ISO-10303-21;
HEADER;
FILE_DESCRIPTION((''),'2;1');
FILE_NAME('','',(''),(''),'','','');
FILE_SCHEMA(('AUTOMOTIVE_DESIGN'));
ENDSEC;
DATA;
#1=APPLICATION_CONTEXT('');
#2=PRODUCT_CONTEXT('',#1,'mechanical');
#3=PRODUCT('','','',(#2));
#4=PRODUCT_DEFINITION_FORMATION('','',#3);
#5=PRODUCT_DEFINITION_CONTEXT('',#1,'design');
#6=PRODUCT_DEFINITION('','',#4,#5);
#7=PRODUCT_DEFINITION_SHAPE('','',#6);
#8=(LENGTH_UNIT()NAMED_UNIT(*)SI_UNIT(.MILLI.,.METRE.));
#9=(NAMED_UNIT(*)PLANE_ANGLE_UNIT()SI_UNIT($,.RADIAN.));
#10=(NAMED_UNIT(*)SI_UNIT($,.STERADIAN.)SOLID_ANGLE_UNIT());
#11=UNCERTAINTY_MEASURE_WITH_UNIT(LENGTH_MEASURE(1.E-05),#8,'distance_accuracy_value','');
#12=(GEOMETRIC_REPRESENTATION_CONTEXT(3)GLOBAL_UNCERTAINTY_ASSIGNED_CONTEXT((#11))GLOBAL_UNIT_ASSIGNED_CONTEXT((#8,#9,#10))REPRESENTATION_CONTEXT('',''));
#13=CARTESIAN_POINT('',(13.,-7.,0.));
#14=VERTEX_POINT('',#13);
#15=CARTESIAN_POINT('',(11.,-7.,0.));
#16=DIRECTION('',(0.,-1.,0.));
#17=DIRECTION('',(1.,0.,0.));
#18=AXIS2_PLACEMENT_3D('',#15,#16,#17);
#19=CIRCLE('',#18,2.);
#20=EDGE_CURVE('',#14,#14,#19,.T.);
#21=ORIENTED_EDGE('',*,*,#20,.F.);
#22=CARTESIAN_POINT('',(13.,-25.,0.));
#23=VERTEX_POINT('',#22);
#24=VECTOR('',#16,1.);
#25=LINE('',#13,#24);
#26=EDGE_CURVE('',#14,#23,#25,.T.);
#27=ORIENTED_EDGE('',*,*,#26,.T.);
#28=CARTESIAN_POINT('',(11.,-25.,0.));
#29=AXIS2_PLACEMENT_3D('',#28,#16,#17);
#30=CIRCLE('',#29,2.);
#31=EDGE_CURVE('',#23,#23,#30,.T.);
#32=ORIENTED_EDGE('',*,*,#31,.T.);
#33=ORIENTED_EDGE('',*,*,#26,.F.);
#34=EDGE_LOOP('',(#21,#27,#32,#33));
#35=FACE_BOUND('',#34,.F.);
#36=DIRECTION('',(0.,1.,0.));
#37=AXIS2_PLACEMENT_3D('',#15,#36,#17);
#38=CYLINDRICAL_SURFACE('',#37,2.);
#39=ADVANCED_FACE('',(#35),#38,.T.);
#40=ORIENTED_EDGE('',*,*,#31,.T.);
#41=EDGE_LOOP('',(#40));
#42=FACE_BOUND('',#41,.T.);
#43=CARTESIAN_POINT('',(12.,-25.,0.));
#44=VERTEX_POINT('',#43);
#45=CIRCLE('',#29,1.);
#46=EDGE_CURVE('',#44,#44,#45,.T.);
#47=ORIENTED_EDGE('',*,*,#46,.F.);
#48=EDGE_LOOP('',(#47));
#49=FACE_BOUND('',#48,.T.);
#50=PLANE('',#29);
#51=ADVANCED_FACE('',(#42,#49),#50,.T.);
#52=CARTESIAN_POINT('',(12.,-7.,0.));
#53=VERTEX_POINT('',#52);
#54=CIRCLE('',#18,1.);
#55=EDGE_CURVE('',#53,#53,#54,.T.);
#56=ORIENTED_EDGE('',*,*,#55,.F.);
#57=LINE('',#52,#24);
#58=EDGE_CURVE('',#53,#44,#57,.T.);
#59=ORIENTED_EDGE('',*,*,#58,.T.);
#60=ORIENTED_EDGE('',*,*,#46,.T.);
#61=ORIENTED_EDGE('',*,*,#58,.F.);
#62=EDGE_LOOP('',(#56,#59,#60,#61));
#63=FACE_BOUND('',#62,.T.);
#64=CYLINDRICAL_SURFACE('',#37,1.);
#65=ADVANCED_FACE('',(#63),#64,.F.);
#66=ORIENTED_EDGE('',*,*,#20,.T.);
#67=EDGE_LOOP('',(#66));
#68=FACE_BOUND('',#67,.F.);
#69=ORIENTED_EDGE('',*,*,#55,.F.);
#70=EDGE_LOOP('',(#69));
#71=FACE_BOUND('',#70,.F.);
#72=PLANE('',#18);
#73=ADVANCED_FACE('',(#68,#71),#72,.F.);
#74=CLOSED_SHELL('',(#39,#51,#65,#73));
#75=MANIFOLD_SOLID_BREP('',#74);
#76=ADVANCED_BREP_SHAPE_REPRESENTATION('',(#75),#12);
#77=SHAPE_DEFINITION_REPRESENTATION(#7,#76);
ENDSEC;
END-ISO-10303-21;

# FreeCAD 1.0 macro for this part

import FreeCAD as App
import Part
import Sketcher

doc = App.newDocument("Part")
params = doc.addObject("Spreadsheet::Sheet", "Params")
for row, (alias, value) in enumerate([
    ("sketch1_diameter", "2 mm"),
    ("pad1_length", "18 mm"),
    ("sketch2_diameter", "4 mm"),
    ("pad2_length", "18 mm"),
], start=1):
    params.set(f"A{row}", alias)
    params.set(f"B{row}", "=" + value)
    params.setAlias(f"B{row}", alias)

body = doc.addObject("PartDesign::Body", "Body")

# Sketch on XY plane
sketch1 = body.newObject("Sketcher::SketchObject", "Sketch")
sketch1.AttachmentSupport = (doc.getObject("XY_Plane"), [""])
sketch1.MapMode = "FlatFace"
sketch1.addGeometry(Part.Circle(App.Vector(0, 0, 0), App.Vector(0, 0, 1), 1), False)
sketch1.addConstraint([
    Sketcher.Constraint("Coincident", 0, 3, -1, 1),
    Sketcher.Constraint("Diameter", 0, 2.0),
])
sketch1.setExpression("Constraints[1]", "Params.sketch1_diameter")
pad1 = body.newObject("PartDesign::Pad", "Pad")
pad1.Profile = sketch1
pad1.setExpression("Length", "Params.pad1_length")
body2 = doc.addObject("PartDesign::Body", "Body001")
doc.recompute()

body.Placement = App.Placement(App.Vector(0, 0, 0), App.Rotation(App.Vector(1, 0, 0), 90))
boolean = body2.newObject("PartDesign::Boolean", "Boolean")
boolean.Type = "Fuse"
boolean.addObjects([body])
body3 = doc.addObject("PartDesign::Body", "Body002")
doc.recompute()

body2.Placement = App.Placement(App.Vector(12, -7, 0), App.Rotation(App.Vector(0, 0, 1), 0))
boolean2 = body3.newObject("PartDesign::Boolean", "Boolean001")
boolean2.Type = "Fuse"
boolean2.addObjects([body2])
body4 = doc.addObject("PartDesign::Body", "Body003")

# Sketch on XY plane
sketch2 = body4.newObject("Sketcher::SketchObject", "Sketch001")
sketch2.AttachmentSupport = (doc.getObject("XY_Plane003"), [""])
sketch2.MapMode = "FlatFace"
sketch2.addGeometry(Part.Circle(App.Vector(0, 0, 0), App.Vector(0, 0, 1), 2), False)
sketch2.addConstraint([
    Sketcher.Constraint("Coincident", 0, 3, -1, 1),
    Sketcher.Constraint("Diameter", 0, 4.0),
])
sketch2.setExpression("Constraints[1]", "Params.sketch2_diameter")
pad2 = body4.newObject("PartDesign::Pad", "Pad001")
pad2.Profile = sketch2
pad2.setExpression("Length", "Params.pad2_length")
body5 = doc.addObject("PartDesign::Body", "Body004")
doc.recompute()

body4.Placement = App.Placement(App.Vector(0, 0, 0), App.Rotation(App.Vector(1, 0, 0), 90))
boolean3 = body5.newObject("PartDesign::Boolean", "Boolean002")
boolean3.Type = "Fuse"
boolean3.addObjects([body4])
body6 = doc.addObject("PartDesign::Body", "Body005")
doc.recompute()

body5.Placement = App.Placement(App.Vector(12, -7, 0), App.Rotation(App.Vector(0, 0, 1), 0))
boolean4 = body6.newObject("PartDesign::Boolean", "Boolean003")
boolean4.Type = "Fuse"
boolean4.addObjects([body5])
doc.recompute()

boolean5 = body6.newObject("PartDesign::Boolean", "Boolean004")
boolean5.Type = "Cut"
boolean5.addObjects([body3])
body7 = doc.addObject("PartDesign::Body", "Body006")
doc.recompute()

body6.Placement = App.Placement(App.Vector(-1, 0, 0), App.Rotation(App.Vector(0, 0, 1), 0))
boolean6 = body7.newObject("PartDesign::Boolean", "Boolean005")
boolean6.Type = "Fuse"
boolean6.addObjects([body6])

doc.recompute()
